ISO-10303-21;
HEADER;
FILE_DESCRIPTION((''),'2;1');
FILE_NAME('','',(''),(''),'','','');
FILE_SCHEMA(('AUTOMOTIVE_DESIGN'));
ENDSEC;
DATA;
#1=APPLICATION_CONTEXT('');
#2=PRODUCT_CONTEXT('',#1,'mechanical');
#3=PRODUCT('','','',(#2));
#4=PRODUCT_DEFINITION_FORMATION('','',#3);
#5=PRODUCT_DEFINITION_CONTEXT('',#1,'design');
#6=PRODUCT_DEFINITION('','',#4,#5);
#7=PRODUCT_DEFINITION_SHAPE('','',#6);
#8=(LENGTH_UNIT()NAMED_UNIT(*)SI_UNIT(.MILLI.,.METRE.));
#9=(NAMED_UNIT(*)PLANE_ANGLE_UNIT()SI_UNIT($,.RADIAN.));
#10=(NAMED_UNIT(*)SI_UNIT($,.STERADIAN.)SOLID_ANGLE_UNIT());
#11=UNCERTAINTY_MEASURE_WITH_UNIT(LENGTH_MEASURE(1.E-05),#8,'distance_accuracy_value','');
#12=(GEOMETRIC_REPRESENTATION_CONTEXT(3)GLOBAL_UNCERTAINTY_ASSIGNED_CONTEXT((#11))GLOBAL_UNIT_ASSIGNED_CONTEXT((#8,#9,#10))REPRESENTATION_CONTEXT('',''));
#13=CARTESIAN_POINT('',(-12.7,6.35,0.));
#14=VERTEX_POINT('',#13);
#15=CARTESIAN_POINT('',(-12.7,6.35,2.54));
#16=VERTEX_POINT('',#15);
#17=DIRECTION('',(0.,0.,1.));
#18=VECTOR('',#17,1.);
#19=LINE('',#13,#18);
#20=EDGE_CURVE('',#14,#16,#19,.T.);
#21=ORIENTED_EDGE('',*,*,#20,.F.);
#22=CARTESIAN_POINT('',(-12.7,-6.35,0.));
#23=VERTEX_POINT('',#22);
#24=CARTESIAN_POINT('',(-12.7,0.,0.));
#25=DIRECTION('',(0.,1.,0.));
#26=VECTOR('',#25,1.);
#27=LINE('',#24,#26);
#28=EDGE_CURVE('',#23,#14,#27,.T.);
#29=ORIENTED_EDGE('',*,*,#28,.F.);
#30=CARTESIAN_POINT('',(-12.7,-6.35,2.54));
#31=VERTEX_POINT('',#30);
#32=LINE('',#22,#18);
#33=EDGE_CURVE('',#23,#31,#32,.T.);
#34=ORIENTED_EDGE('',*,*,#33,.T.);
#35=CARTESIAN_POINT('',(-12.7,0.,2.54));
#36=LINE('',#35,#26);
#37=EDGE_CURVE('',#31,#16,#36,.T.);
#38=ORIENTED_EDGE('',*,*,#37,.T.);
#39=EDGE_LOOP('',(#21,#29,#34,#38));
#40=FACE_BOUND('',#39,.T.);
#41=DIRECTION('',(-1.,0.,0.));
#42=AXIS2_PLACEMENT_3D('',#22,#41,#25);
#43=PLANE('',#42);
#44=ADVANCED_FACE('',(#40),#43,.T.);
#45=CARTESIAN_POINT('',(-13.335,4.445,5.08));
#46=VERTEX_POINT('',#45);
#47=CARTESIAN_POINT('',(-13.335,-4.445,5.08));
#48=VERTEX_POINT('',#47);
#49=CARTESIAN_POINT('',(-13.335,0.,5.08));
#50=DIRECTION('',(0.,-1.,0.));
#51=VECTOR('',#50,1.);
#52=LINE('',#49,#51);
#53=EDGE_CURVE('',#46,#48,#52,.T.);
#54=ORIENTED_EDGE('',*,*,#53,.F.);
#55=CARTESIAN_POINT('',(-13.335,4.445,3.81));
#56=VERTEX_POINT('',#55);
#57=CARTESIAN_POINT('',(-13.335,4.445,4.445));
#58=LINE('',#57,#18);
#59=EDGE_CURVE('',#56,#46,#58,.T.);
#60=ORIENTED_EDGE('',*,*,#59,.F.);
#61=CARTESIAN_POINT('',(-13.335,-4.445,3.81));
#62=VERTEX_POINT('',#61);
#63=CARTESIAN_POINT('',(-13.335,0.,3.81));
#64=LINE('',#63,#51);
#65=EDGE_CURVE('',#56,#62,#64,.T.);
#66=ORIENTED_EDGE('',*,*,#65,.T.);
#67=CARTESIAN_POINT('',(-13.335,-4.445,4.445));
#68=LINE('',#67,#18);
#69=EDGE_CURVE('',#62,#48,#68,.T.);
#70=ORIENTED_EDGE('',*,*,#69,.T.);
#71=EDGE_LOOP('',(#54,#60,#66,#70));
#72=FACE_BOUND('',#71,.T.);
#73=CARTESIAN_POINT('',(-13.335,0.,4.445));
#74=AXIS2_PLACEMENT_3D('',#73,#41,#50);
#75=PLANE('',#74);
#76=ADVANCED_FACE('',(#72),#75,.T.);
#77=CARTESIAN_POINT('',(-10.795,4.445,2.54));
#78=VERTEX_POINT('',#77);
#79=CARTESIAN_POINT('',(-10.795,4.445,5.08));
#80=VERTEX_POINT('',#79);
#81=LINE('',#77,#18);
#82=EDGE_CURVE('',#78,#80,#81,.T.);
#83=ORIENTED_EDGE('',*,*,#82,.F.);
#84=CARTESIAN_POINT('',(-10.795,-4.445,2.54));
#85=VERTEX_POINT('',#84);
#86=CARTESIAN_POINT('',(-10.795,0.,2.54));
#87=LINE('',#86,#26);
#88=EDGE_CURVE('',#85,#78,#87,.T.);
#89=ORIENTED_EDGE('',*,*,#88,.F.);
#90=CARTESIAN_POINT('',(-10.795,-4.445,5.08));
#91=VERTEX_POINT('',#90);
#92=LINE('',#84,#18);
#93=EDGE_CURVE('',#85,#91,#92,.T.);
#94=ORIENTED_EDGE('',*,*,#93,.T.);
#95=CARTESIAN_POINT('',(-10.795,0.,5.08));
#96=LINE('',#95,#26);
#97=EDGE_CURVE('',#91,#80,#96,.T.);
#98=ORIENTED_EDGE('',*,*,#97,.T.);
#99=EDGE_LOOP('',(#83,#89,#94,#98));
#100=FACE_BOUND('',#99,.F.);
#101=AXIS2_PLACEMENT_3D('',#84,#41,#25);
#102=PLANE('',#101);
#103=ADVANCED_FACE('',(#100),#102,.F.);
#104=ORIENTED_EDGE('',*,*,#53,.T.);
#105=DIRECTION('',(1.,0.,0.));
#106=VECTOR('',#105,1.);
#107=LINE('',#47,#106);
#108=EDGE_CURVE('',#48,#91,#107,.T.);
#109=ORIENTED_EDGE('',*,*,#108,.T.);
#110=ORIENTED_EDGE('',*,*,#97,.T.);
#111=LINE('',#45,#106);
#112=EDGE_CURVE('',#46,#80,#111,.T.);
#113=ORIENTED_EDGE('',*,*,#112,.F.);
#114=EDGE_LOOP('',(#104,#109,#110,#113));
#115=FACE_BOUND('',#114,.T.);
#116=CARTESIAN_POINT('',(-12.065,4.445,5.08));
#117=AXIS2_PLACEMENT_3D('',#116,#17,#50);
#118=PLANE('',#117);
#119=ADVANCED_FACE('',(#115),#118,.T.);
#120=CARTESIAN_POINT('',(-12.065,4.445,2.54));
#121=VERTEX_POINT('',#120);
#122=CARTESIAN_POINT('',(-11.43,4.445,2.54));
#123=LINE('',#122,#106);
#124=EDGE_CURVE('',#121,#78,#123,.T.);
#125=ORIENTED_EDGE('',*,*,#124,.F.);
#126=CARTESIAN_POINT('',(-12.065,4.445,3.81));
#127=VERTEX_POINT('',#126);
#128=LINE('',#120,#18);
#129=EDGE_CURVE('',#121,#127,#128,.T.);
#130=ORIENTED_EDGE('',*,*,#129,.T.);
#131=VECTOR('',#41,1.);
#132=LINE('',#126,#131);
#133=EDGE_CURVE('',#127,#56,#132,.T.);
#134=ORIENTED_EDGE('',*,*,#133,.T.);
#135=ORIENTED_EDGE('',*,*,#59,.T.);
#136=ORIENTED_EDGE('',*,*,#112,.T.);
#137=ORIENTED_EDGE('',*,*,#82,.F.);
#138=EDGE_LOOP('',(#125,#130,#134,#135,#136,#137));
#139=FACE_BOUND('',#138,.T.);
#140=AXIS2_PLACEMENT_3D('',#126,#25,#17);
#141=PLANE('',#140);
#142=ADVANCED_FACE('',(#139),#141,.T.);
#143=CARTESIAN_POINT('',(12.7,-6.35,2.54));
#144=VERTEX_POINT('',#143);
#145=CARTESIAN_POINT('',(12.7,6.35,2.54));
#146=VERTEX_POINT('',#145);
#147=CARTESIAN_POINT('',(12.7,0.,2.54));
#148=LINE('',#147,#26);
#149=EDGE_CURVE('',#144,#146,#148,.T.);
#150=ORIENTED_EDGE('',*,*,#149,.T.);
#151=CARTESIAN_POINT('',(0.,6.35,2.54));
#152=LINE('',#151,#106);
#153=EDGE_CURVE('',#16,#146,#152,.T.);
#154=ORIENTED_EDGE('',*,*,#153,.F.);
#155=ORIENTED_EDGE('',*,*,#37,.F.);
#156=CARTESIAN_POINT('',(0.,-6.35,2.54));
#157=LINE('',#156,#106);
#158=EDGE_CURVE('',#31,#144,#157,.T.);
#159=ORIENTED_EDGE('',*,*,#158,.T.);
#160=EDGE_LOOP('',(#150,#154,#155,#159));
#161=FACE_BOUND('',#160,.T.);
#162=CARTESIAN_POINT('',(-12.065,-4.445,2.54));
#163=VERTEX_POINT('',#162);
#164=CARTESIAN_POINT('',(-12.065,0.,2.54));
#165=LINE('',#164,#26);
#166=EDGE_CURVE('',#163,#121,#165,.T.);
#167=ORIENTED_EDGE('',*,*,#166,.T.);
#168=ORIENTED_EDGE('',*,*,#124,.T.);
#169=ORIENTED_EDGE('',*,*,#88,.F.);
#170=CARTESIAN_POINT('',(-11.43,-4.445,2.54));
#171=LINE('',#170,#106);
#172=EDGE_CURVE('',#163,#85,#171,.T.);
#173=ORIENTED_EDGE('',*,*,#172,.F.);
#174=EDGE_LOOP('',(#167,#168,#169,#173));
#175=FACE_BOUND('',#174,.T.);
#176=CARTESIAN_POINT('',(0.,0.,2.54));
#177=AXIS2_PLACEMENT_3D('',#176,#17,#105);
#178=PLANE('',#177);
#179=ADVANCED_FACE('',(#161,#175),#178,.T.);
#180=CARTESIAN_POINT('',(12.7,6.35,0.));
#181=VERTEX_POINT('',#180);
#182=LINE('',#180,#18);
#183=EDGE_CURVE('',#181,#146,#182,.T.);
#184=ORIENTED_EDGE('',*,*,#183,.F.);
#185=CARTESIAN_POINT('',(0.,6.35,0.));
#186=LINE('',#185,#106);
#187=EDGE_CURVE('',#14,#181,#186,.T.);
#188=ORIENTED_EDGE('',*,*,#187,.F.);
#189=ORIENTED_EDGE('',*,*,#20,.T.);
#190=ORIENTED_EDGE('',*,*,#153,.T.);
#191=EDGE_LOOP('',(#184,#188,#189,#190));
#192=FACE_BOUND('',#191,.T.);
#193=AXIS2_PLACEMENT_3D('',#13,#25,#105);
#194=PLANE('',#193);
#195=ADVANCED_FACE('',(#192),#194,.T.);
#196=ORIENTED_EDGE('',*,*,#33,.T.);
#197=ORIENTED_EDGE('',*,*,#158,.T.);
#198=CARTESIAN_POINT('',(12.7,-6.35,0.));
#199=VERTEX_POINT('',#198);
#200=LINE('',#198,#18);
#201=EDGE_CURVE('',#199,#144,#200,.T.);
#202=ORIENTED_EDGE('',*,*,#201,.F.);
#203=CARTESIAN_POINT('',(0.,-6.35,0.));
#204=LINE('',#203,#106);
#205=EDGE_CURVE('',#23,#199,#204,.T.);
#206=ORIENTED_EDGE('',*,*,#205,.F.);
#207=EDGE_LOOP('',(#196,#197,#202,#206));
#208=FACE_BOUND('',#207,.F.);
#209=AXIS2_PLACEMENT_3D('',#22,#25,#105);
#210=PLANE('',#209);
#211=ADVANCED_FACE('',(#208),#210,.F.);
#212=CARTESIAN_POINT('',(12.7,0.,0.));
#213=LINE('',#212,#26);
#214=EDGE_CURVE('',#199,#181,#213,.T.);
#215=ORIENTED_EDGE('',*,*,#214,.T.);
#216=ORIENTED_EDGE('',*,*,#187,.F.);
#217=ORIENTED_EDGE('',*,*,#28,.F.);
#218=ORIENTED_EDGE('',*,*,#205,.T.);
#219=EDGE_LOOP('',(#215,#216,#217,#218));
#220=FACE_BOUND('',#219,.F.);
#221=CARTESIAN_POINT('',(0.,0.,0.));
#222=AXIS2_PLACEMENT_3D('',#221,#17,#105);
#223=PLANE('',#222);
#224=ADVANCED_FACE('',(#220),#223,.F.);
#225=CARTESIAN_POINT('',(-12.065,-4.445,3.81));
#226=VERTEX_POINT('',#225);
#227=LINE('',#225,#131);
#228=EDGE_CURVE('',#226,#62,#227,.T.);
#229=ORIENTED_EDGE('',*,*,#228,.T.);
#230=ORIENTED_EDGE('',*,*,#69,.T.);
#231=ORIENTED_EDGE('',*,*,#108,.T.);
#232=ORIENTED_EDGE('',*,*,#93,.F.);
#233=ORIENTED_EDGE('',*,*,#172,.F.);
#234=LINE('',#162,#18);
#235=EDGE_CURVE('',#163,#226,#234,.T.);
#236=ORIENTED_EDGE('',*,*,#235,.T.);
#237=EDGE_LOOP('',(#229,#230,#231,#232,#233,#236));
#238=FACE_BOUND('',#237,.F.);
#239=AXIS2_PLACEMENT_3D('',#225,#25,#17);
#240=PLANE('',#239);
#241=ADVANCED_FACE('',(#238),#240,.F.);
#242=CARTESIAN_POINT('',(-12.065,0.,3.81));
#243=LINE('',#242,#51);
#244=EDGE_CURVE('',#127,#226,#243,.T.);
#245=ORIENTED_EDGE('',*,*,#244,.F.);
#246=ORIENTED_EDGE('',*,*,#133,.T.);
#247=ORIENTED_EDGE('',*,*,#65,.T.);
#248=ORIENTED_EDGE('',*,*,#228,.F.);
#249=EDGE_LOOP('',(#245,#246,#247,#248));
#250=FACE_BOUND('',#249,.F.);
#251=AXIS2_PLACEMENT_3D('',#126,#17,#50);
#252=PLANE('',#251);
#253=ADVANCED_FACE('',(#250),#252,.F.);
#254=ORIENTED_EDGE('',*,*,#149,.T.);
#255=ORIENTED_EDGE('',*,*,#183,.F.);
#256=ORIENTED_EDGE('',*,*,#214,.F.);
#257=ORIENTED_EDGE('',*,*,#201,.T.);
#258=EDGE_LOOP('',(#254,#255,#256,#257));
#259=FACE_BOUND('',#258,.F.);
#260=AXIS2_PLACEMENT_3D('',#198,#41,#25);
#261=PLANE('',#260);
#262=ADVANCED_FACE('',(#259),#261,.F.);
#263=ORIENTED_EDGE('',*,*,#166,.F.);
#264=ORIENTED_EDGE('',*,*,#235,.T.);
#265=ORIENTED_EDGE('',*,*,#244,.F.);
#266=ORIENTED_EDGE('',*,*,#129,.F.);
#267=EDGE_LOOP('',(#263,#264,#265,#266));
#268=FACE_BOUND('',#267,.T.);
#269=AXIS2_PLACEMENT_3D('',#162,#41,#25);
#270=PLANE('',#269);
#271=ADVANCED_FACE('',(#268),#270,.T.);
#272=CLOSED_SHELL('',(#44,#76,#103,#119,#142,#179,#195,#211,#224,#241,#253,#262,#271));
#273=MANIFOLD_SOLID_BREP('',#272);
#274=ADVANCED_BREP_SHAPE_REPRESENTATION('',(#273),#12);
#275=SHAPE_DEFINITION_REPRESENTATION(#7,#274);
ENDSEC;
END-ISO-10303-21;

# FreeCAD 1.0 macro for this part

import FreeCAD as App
import Part
import Sketcher
Q = App.Units.Quantity


def add_polygon(sketch, points):
    """Adds a closed chain of lines whose ends are joined by coincident constraints."""
    first, n = sketch.GeometryCount, len(points)
    for a, b in zip(points, points[1:] + points[:1]):
        sketch.addGeometry(Part.LineSegment(App.Vector(*a, 0), App.Vector(*b, 0)), False)
    for i in range(n):
        sketch.addConstraint(Sketcher.Constraint("Coincident", first + i, 2, first + (i + 1) % n, 1))

doc = App.newDocument("Part")
params = doc.addObject("Spreadsheet::Sheet", "Params")
for row, (alias, value) in enumerate([
    ("sketch1_width", "1 in"),
    ("sketch1_height", "0.5 in"),
    ("pad1_length", "0.1 in"),
    ("sketch2_width", "0.05 in"),
    ("sketch2_height", "0.35 in"),
    ("pad2_length", "0.1 in"),
    ("sketch3_width", "0.35 in"),
    ("sketch3_height", "0.05 in"),
    ("pad3_length", "0.05 in"),
], start=1):
    params.set(f"A{row}", alias)
    params.set(f"B{row}", "=" + value)
    params.setAlias(f"B{row}", alias)

body = doc.addObject("PartDesign::Body", "Body")

# Sketch on XY plane
sketch1 = body.newObject("Sketcher::SketchObject", "Sketch")
sketch1.AttachmentSupport = (doc.getObject("XY_Plane"), [""])
sketch1.MapMode = "FlatFace"
add_polygon(sketch1, [(-13, 6), (-13, -6), (13, -6), (13, 6)])  # lines 0-3
sketch1.addConstraint([
    Sketcher.Constraint("Vertical", 0),
    Sketcher.Constraint("Horizontal", 1),
    Sketcher.Constraint("Vertical", 2),
    Sketcher.Constraint("Horizontal", 3),
    Sketcher.Constraint("Symmetric", 0, 2, 2, 2, -1, 1),
    Sketcher.Constraint("DistanceX", 1, 1, 1, 2, Q("1 in")),
    Sketcher.Constraint("DistanceY", 0, 2, 0, 1, Q("0.5 in")),
])
sketch1.setExpression("Constraints[9]", "Params.sketch1_width")
sketch1.setExpression("Constraints[10]", "Params.sketch1_height")
pad1 = body.newObject("PartDesign::Pad", "Pad")
pad1.Profile = sketch1
pad1.setExpression("Length", "Params.pad1_length")

# Sketch on XY plane
sketch2 = body.newObject("Sketcher::SketchObject", "Sketch001")
sketch2.AttachmentSupport = (doc.getObject("XY_Plane"), [""])
sketch2.MapMode = "FlatFace"
sketch2.AttachmentOffset = App.Placement(App.Vector(0, 0, 0.1 * 25.4), App.Rotation())
add_polygon(sketch2, [(-12.1, 4.4), (-12.1, -4.4), (-10.8, -4.4), (-10.8, 4.4)])  # lines 0-3
sketch2.addConstraint([
    Sketcher.Constraint("Vertical", 0),
    Sketcher.Constraint("Horizontal", 1),
    Sketcher.Constraint("Vertical", 2),
    Sketcher.Constraint("Horizontal", 3),
    Sketcher.Constraint("DistanceX", 1, 1, 1, 2, Q("0.05 in")),
    Sketcher.Constraint("DistanceY", 0, 2, 0, 1, Q("0.35 in")),
    Sketcher.Constraint("DistanceX", 0, 2, -1, 1, Q("0.475 in")),
    Sketcher.Constraint("DistanceY", 0, 2, -1, 1, Q("0.175 in")),
])
sketch2.setExpression("Constraints[8]", "Params.sketch2_width")
sketch2.setExpression("Constraints[9]", "Params.sketch2_height")
pad2 = body.newObject("PartDesign::Pad", "Pad001")
pad2.Profile = sketch2
pad2.setExpression("Length", "Params.pad2_length")

# Sketch on YZ plane
sketch3 = body.newObject("Sketcher::SketchObject", "Sketch002")
sketch3.AttachmentSupport = (doc.getObject("YZ_Plane"), [""])
sketch3.MapMode = "FlatFace"
sketch3.AttachmentOffset = App.Placement(App.Vector(0, 0, -0.475 * 25.4), App.Rotation())
add_polygon(sketch3, [(4.4, 5.1), (4.4, 3.8), (-4.4, 3.8), (-4.4, 5.1)])  # lines 0-3
sketch3.addConstraint([
    Sketcher.Constraint("Vertical", 0),
    Sketcher.Constraint("Horizontal", 1),
    Sketcher.Constraint("Vertical", 2),
    Sketcher.Constraint("Horizontal", 3),
    Sketcher.Constraint("DistanceX", 1, 2, 1, 1, Q("0.35 in")),
    Sketcher.Constraint("DistanceY", 0, 2, 0, 1, Q("0.05 in")),
    Sketcher.Constraint("DistanceY", -1, 1, 2, 2, Q("0.2 in")),
    Sketcher.Constraint("DistanceX", -1, 1, 0, 2, Q("0.175 in")),
])
sketch3.setExpression("Constraints[8]", "Params.sketch3_width")
sketch3.setExpression("Constraints[9]", "Params.sketch3_height")
pad3 = body.newObject("PartDesign::Pad", "Pad002")
pad3.Profile = sketch3
pad3.setExpression("Length", "Params.pad3_length")
pad3.Reversed = True

doc.recompute()
